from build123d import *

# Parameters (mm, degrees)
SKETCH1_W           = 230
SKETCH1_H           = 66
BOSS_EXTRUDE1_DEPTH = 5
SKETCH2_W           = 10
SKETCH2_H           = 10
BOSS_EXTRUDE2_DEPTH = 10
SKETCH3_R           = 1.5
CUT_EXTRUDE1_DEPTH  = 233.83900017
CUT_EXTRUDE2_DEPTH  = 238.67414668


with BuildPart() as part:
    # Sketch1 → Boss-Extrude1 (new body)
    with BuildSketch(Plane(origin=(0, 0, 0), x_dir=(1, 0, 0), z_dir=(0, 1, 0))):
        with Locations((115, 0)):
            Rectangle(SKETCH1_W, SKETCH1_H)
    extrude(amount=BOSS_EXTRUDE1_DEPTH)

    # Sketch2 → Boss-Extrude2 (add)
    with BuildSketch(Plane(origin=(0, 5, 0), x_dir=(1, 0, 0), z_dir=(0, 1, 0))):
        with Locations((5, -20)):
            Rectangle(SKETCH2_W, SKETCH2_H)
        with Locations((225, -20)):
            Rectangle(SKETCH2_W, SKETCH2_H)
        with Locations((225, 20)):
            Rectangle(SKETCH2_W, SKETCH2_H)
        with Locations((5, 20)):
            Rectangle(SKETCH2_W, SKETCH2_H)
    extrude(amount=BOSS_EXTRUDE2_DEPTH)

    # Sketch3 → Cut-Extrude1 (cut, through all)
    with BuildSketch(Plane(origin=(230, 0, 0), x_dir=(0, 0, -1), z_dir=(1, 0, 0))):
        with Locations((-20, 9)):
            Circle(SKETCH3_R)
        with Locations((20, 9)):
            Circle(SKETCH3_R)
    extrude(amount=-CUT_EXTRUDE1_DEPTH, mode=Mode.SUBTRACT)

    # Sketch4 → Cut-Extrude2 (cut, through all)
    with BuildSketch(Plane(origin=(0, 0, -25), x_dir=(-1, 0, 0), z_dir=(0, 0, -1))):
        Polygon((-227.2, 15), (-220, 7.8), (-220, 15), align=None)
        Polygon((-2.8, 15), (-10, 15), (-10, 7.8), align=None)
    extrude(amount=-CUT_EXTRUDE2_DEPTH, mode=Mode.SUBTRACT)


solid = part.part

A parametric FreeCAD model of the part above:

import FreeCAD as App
import Part
import Sketcher
Q = App.Units.Quantity

doc = App.newDocument("Part")
body = doc.addObject("PartDesign::Body", "Body")

sketch1 = doc.addObject("Sketcher::SketchObject", "Sketch")
body.addObject(sketch1)
sketch1.AttachmentSupport = (doc.XZ_Plane, [""])
sketch1.MapMode = "FlatFace"
sketch1.addGeometry([
    Part.LineSegment(App.Vector(0, -33, 0), App.Vector(0, 33, 0)),
    Part.LineSegment(App.Vector(0, 33, 0), App.Vector(230, 33, 0)),
    Part.LineSegment(App.Vector(230, 33, 0), App.Vector(230, -33, 0)),
    Part.LineSegment(App.Vector(230, -33, 0), App.Vector(0, -33, 0)),
], False)
sketch1.addConstraint([
    Sketcher.Constraint("Coincident", 0, 2, 1, 1),
    Sketcher.Constraint("Coincident", 1, 2, 2, 1),
    Sketcher.Constraint("Coincident", 2, 2, 3, 1),
    Sketcher.Constraint("Coincident", 3, 2, 0, 1),
    Sketcher.Constraint("Vertical", 0),
    Sketcher.Constraint("Horizontal", 1),
    Sketcher.Constraint("Vertical", 2),
    Sketcher.Constraint("Horizontal", 3),
    Sketcher.Constraint("Symmetric", 0, 2, 3, 2, -1, 1),
    Sketcher.Constraint("DistanceX", 1, 1, 1, 2, Q("230 mm")),
    Sketcher.Constraint("DistanceY", 0, 1, 0, 2, Q("66 mm")),
])
pad1 = doc.addObject("PartDesign::Pad", "Pad")
body.addObject(pad1)
pad1.Profile = sketch1
pad1.Length = 5
pad1.Reversed = True

sketch2 = doc.addObject("Sketcher::SketchObject", "Sketch001")
body.addObject(sketch2)
sketch2.AttachmentSupport = (doc.XZ_Plane, [""])
sketch2.MapMode = "FlatFace"
sketch2.AttachmentOffset = App.Placement(App.Vector(0, 0, -5), App.Rotation())
sketch2.addGeometry([
    Part.LineSegment(App.Vector(0, 15, 0), App.Vector(0, 25, 0)),
    Part.LineSegment(App.Vector(0, 25, 0), App.Vector(10, 25, 0)),
    Part.LineSegment(App.Vector(10, 25, 0), App.Vector(10, 15, 0)),
    Part.LineSegment(App.Vector(10, 15, 0), App.Vector(0, 15, 0)),
    Part.LineSegment(App.Vector(220, 15, 0), App.Vector(220, 25, 0)),
    Part.LineSegment(App.Vector(220, 25, 0), App.Vector(230, 25, 0)),
    Part.LineSegment(App.Vector(230, 25, 0), App.Vector(230, 15, 0)),
    Part.LineSegment(App.Vector(230, 15, 0), App.Vector(220, 15, 0)),
    Part.LineSegment(App.Vector(220, -25, 0), App.Vector(220, -15, 0)),
    Part.LineSegment(App.Vector(220, -15, 0), App.Vector(230, -15, 0)),
    Part.LineSegment(App.Vector(230, -15, 0), App.Vector(230, -25, 0)),
    Part.LineSegment(App.Vector(230, -25, 0), App.Vector(220, -25, 0)),
    Part.LineSegment(App.Vector(0, -25, 0), App.Vector(0, -15, 0)),
    Part.LineSegment(App.Vector(0, -15, 0), App.Vector(10, -15, 0)),
    Part.LineSegment(App.Vector(10, -15, 0), App.Vector(10, -25, 0)),
    Part.LineSegment(App.Vector(10, -25, 0), App.Vector(0, -25, 0)),
], False)
sketch2.addConstraint([
    Sketcher.Constraint("Coincident", 0, 2, 1, 1),
    Sketcher.Constraint("Coincident", 1, 2, 2, 1),
    Sketcher.Constraint("Coincident", 2, 2, 3, 1),
    Sketcher.Constraint("Coincident", 3, 2, 0, 1),
    Sketcher.Constraint("Coincident", 4, 2, 5, 1),
    Sketcher.Constraint("Coincident", 5, 2, 6, 1),
    Sketcher.Constraint("Coincident", 6, 2, 7, 1),
    Sketcher.Constraint("Coincident", 7, 2, 4, 1),
    Sketcher.Constraint("Coincident", 8, 2, 9, 1),
    Sketcher.Constraint("Coincident", 9, 2, 10, 1),
    Sketcher.Constraint("Coincident", 10, 2, 11, 1),
    Sketcher.Constraint("Coincident", 11, 2, 8, 1),
    Sketcher.Constraint("Coincident", 12, 2, 13, 1),
    Sketcher.Constraint("Coincident", 13, 2, 14, 1),
    Sketcher.Constraint("Coincident", 14, 2, 15, 1),
    Sketcher.Constraint("Coincident", 15, 2, 12, 1),
    Sketcher.Constraint("Vertical", 0),
    Sketcher.Constraint("Horizontal", 1),
    Sketcher.Constraint("Vertical", 2),
    Sketcher.Constraint("Horizontal", 3),
    Sketcher.Constraint("Vertical", 4),
    Sketcher.Constraint("Horizontal", 5),
    Sketcher.Constraint("Vertical", 6),
    Sketcher.Constraint("Horizontal", 7),
    Sketcher.Constraint("Vertical", 8),
    Sketcher.Constraint("Horizontal", 9),
    Sketcher.Constraint("Vertical", 10),
    Sketcher.Constraint("Horizontal", 11),
    Sketcher.Constraint("Vertical", 12),
    Sketcher.Constraint("Horizontal", 13),
    Sketcher.Constraint("Vertical", 14),
    Sketcher.Constraint("Horizontal", 15),
    Sketcher.Constraint("Symmetric", 3, 2, 12, 2, -1, 1),
    Sketcher.Constraint("Symmetric", 7, 2, 8, 2, -1),
    Sketcher.Constraint("Symmetric", 5, 2, 10, 2, -1),
    Sketcher.Constraint("Symmetric", 1, 2, 14, 2, -1),
    Sketcher.Constraint("PointOnObject", 0, 2, -2),
    Sketcher.Constraint("Horizontal", 1, 2, 4, 2),
    Sketcher.Constraint("Horizontal", 3, 2, 6, 2),
    Sketcher.Constraint("Equal", 3, 5),
    Sketcher.Constraint("Equal", 15, 0),
    Sketcher.Constraint("DistanceX", 1, 1, 1, 2, Q("10 mm")),
    Sketcher.Constraint("DistanceY", -1, 1, 0, 2, Q("25 mm")),
    Sketcher.Constraint("DistanceX", -1, 1, 4, 2, Q("220 mm")),
])
pad2 = doc.addObject("PartDesign::Pad", "Pad001")
body.addObject(pad2)
pad2.Profile = sketch2
pad2.Length = 10
pad2.Reversed = True

sketch3 = doc.addObject("Sketcher::SketchObject", "Sketch002")
body.addObject(sketch3)
sketch3.AttachmentSupport = (doc.YZ_Plane, [""])
sketch3.MapMode = "FlatFace"
sketch3.AttachmentOffset = App.Placement(App.Vector(0, 0, 230), App.Rotation())
sketch3.addGeometry([
    Part.Circle(App.Vector(9, 20, 0), App.Vector(0, 0, 1), 1.5),
    Part.Circle(App.Vector(9, -20, 0), App.Vector(0, 0, 1), 1.5),
], False)
sketch3.addConstraint([
    Sketcher.Constraint("Equal", 0, 1),
    Sketcher.Constraint("Symmetric", 0, 3, 1, 3, -1),
    Sketcher.Constraint("Diameter", 0, Q("3 mm")),
    Sketcher.Constraint("DistanceX", -1, 1, 0, 3, Q("9 mm")),
    Sketcher.Constraint("DistanceY", -1, 1, 0, 3, Q("20 mm")),
])
pocket1 = doc.addObject("PartDesign::Pocket", "Pocket")
body.addObject(pocket1)
pocket1.Profile = sketch3
pocket1.Type = "ThroughAll"

sketch4 = doc.addObject("Sketcher::SketchObject", "Sketch003")
body.addObject(sketch4)
sketch4.AttachmentSupport = (doc.XY_Plane, [""])
sketch4.MapMode = "FlatFace"
sketch4.AttachmentOffset = App.Placement(App.Vector(0, 0, -25), App.Rotation())
sketch4.addGeometry([
    Part.LineSegment(App.Vector(227, 15, 0), App.Vector(220, 8, 0)),
    Part.LineSegment(App.Vector(220, 8, 0), App.Vector(220, 15, 0)),
    Part.LineSegment(App.Vector(220, 15, 0), App.Vector(227, 15, 0)),
    Part.LineSegment(App.Vector(3, 15, 0), App.Vector(10, 15, 0)),
    Part.LineSegment(App.Vector(10, 15, 0), App.Vector(10, 8, 0)),
    Part.LineSegment(App.Vector(10, 8, 0), App.Vector(3, 15, 0)),
], False)
sketch4.addConstraint([
    Sketcher.Constraint("Coincident", 0, 2, 1, 1),
    Sketcher.Constraint("Coincident", 1, 2, 2, 1),
    Sketcher.Constraint("Coincident", 2, 2, 0, 1),
    Sketcher.Constraint("Coincident", 3, 2, 4, 1),
    Sketcher.Constraint("Coincident", 4, 2, 5, 1),
    Sketcher.Constraint("Coincident", 5, 2, 3, 1),
    Sketcher.Constraint("Vertical", 1),
    Sketcher.Constraint("Horizontal", 2),
    Sketcher.Constraint("Horizontal", 3),
    Sketcher.Constraint("Vertical", 4),
    Sketcher.Constraint("Perpendicular", 0, 5),
    Sketcher.Constraint("Horizontal", 2, 2, 3, 2),
    Sketcher.Constraint("Horizontal", 0, 2, 4, 2),
    Sketcher.Constraint("Equal", 2, 3),
    Sketcher.Constraint("DistanceX", 2, 1, 2, 2, Q("7.2 mm")),
    Sketcher.Constraint("DistanceX", -1, 1, 0, 2, Q("220 mm")),
    Sketcher.Constraint("DistanceY", -1, 1, 1, 2, Q("15 mm")),
    Sketcher.Constraint("DistanceX", -1, 1, 3, 2, Q("10 mm")),
])
pocket2 = doc.addObject("PartDesign::Pocket", "Pocket001")
body.addObject(pocket2)
pocket2.Profile = sketch4
pocket2.Type = "ThroughAll"
pocket2.Reversed = True

doc.recompute()
